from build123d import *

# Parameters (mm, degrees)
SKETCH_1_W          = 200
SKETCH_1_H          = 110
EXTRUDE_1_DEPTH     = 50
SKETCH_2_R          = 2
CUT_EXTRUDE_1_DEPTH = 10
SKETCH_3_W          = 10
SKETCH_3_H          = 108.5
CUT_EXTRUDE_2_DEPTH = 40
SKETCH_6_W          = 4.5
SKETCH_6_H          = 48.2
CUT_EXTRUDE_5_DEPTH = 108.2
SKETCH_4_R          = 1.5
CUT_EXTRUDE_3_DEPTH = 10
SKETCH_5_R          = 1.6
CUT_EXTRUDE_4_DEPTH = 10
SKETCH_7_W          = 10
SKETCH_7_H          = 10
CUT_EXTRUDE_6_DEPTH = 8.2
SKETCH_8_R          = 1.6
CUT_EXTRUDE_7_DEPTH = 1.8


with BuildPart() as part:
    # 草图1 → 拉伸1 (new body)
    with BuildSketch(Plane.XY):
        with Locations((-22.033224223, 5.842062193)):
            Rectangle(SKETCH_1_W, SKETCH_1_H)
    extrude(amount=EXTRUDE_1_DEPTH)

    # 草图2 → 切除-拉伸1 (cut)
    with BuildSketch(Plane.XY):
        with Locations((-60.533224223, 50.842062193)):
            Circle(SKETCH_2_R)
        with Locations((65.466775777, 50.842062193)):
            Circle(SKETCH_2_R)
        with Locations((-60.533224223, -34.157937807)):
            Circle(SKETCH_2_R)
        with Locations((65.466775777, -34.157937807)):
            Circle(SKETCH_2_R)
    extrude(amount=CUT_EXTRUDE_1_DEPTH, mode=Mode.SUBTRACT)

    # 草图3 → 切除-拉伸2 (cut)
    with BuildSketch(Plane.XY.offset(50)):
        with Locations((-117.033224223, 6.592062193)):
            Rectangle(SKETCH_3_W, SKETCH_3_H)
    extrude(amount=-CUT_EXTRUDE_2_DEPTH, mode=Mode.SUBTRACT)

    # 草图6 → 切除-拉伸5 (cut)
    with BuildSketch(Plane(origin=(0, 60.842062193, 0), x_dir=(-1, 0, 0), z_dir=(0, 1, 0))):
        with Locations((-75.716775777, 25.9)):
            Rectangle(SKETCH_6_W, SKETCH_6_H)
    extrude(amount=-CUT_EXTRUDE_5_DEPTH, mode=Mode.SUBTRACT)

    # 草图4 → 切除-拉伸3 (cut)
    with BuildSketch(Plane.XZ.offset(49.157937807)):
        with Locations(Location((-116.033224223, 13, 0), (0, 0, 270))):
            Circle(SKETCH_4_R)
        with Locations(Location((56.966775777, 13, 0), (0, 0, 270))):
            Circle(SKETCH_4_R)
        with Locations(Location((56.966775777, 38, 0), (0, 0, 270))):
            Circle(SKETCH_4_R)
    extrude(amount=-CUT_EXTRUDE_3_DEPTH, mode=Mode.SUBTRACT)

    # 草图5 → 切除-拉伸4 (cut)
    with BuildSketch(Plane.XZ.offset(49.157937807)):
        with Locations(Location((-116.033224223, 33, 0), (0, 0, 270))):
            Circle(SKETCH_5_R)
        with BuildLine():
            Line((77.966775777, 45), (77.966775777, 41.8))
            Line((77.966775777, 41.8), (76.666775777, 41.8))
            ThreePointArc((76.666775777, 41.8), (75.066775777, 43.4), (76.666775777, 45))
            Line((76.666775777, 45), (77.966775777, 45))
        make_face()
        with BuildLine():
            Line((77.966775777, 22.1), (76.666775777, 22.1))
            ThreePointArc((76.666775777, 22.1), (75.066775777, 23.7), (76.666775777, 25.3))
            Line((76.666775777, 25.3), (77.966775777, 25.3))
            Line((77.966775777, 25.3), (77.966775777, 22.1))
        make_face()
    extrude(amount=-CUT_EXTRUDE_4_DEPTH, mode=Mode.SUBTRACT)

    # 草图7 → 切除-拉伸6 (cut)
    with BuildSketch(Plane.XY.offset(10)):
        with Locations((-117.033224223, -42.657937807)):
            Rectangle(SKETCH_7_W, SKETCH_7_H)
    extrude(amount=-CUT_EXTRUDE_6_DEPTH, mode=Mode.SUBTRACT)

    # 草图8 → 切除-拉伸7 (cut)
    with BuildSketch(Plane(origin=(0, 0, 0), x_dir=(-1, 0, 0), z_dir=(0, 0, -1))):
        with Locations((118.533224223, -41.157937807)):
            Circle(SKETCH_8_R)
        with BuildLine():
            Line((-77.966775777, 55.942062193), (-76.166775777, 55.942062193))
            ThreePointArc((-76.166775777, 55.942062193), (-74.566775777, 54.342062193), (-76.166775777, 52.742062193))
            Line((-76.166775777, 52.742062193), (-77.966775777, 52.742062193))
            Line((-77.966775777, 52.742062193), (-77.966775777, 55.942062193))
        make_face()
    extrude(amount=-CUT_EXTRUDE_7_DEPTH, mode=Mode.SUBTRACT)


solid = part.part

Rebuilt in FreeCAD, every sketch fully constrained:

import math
import FreeCAD as App
import Part
import Sketcher
from FreeCAD import Vector


def add_polygon(sketch, points):
    """Adds a closed chain of lines whose ends are joined by coincident constraints."""
    first, n = sketch.GeometryCount, len(points)
    for a, b in zip(points, points[1:] + points[:1]):
        sketch.addGeometry(Part.LineSegment(App.Vector(*a, 0), App.Vector(*b, 0)), False)
    for i in range(n):
        sketch.addConstraint(Sketcher.Constraint("Coincident", first + i, 2, first + (i + 1) % n, 1))

doc = App.newDocument("Part")
params = doc.addObject("Spreadsheet::Sheet", "Params")
for row, (alias, value) in enumerate([
    ("sketch1_width", "200 mm"),
    ("sketch1_height", "110 mm"),
    ("pad1_length", "50 mm"),
    ("sketch2_diameter", "4 mm"),
    ("pocket1_length", "10 mm"),
    ("sketch3_width", "10 mm"),
    ("sketch3_height", "108.5 mm"),
    ("pocket2_length", "40 mm"),
    ("sketch4_width", "4.5 mm"),
    ("sketch4_height", "48.2 mm"),
    ("pocket3_length", "108.2 mm"),
    ("sketch5_diameter", "3 mm"),
    ("pocket4_length", "10 mm"),
    ("sketch6_diameter", "3.2 mm"),
    ("sketch6_width", "1.3 mm"),
    ("pocket5_length", "10 mm"),
    ("sketch7_width", "10 mm"),
    ("pocket6_length", "8.2 mm"),
    ("sketch8_diameter", "3.2 mm"),
    ("sketch8_width", "1.8 mm"),
    ("pocket7_length", "1.8 mm"),
], start=1):
    params.set(f"A{row}", alias)
    params.set(f"B{row}", "=" + value)
    params.setAlias(f"B{row}", alias)

body = doc.addObject("PartDesign::Body", "Body")

sketch1 = doc.addObject("Sketcher::SketchObject", "Sketch")
body.addObject(sketch1)
sketch1.AttachmentSupport = (doc.XY_Plane, [""])
sketch1.MapMode = "FlatFace"
add_polygon(sketch1, [(-122, 61), (-122, -49), (78, -49), (78, 61)])
sketch1.addConstraint(Sketcher.Constraint("Vertical", 0))
sketch1.addConstraint(Sketcher.Constraint("Horizontal", 1))
sketch1.addConstraint(Sketcher.Constraint("Vertical", 2))
sketch1.addConstraint(Sketcher.Constraint("Horizontal", 3))
sketch1.addConstraint(Sketcher.Constraint("DistanceX", 1, 1, 1, 2, 200.0))
sketch1.addConstraint(Sketcher.Constraint("DistanceY", 0, 2, 0, 1, 110.0))
sketch1.addConstraint(Sketcher.Constraint("DistanceX", 0, 2, -1, 1, 122.033224))
sketch1.addConstraint(Sketcher.Constraint("DistanceY", 0, 2, -1, 1, 49.157938))
sketch1.setExpression("Constraints[8]", "Params.sketch1_width")
sketch1.setExpression("Constraints[9]", "Params.sketch1_height")
pad1 = doc.addObject("PartDesign::Pad", "Pad")
body.addObject(pad1)
pad1.Profile = sketch1
pad1.setExpression("Length", "Params.pad1_length")

sketch2 = doc.addObject("Sketcher::SketchObject", "Sketch001")
body.addObject(sketch2)
sketch2.AttachmentSupport = (doc.XY_Plane, [""])
sketch2.MapMode = "FlatFace"
sketch2.addGeometry(Part.Circle(Vector(-60.5, 50.8, 0), Vector(0, 0, 1), 2), False)
sketch2.addGeometry(Part.Circle(Vector(65.5, 50.8, 0), Vector(0, 0, 1), 2), False)
sketch2.addGeometry(Part.Circle(Vector(-60.5, -34.2, 0), Vector(0, 0, 1), 2), False)
sketch2.addGeometry(Part.Circle(Vector(65.5, -34.2, 0), Vector(0, 0, 1), 2), False)
sketch2.addConstraint(Sketcher.Constraint("Equal", 0, 1))
sketch2.addConstraint(Sketcher.Constraint("Equal", 1, 2))
sketch2.addConstraint(Sketcher.Constraint("Equal", 2, 3))
sketch2.addConstraint(Sketcher.Constraint("Horizontal", 0, 3, 1, 3))
sketch2.addConstraint(Sketcher.Constraint("Horizontal", 2, 3, 3, 3))
sketch2.addConstraint(Sketcher.Constraint("Vertical", 0, 3, 2, 3))
sketch2.addConstraint(Sketcher.Constraint("Vertical", 1, 3, 3, 3))
sketch2.addConstraint(Sketcher.Constraint("Diameter", 0, 4.0))
sketch2.addConstraint(Sketcher.Constraint("DistanceX", 0, 3, 1, 3, 126.0))
sketch2.addConstraint(Sketcher.Constraint("DistanceY", 2, 3, 0, 3, 85.0))
sketch2.addConstraint(Sketcher.Constraint("DistanceX", 0, 3, -1, 1, 60.533224))
sketch2.addConstraint(Sketcher.Constraint("DistanceY", -1, 1, 0, 3, 50.842062))
sketch2.setExpression("Constraints[7]", "Params.sketch2_diameter")
pocket1 = doc.addObject("PartDesign::Pocket", "Pocket")
body.addObject(pocket1)
pocket1.Profile = sketch2
pocket1.setExpression("Length", "Params.pocket1_length")
pocket1.Reversed = True

sketch3 = doc.addObject("Sketcher::SketchObject", "Sketch002")
body.addObject(sketch3)
sketch3.AttachmentSupport = (doc.XY_Plane, [""])
sketch3.MapMode = "FlatFace"
sketch3.AttachmentOffset = App.Placement(Vector(0, 0, 50), App.Rotation())
add_polygon(sketch3, [(-122, 61), (-122, -48), (-112, -48), (-112, 61)])
sketch3.addConstraint(Sketcher.Constraint("Vertical", 0))
sketch3.addConstraint(Sketcher.Constraint("Horizontal", 1))
sketch3.addConstraint(Sketcher.Constraint("Vertical", 2))
sketch3.addConstraint(Sketcher.Constraint("Horizontal", 3))
sketch3.addConstraint(Sketcher.Constraint("DistanceX", 1, 1, 1, 2, 10.0))
sketch3.addConstraint(Sketcher.Constraint("DistanceY", 0, 2, 0, 1, 108.5))
sketch3.addConstraint(Sketcher.Constraint("DistanceX", 0, 2, -1, 1, 122.033224))
sketch3.addConstraint(Sketcher.Constraint("DistanceY", 0, 2, -1, 1, 47.657938))
sketch3.setExpression("Constraints[8]", "Params.sketch3_width")
sketch3.setExpression("Constraints[9]", "Params.sketch3_height")
pocket2 = doc.addObject("PartDesign::Pocket", "Pocket001")
body.addObject(pocket2)
pocket2.Profile = sketch3
pocket2.setExpression("Length", "Params.pocket2_length")

sketch4 = doc.addObject("Sketcher::SketchObject", "Sketch003")
body.addObject(sketch4)
sketch4.AttachmentSupport = (doc.XZ_Plane, [""])
sketch4.MapMode = "FlatFace"
sketch4.AttachmentOffset = App.Placement(Vector(0, 0, -60.842062), App.Rotation())
add_polygon(sketch4, [(78, 50), (78, 1.8), (73.5, 1.8), (73.5, 50)])
sketch4.addConstraint(Sketcher.Constraint("Vertical", 0))
sketch4.addConstraint(Sketcher.Constraint("Horizontal", 1))
sketch4.addConstraint(Sketcher.Constraint("Vertical", 2))
sketch4.addConstraint(Sketcher.Constraint("Horizontal", 3))
sketch4.addConstraint(Sketcher.Constraint("DistanceX", 1, 2, 1, 1, 4.5))
sketch4.addConstraint(Sketcher.Constraint("DistanceY", 0, 2, 0, 1, 48.2))
sketch4.addConstraint(Sketcher.Constraint("DistanceY", -1, 1, 2, 2, 50.0))
sketch4.addConstraint(Sketcher.Constraint("DistanceX", -1, 1, 0, 2, 77.966776))
sketch4.setExpression("Constraints[8]", "Params.sketch4_width")
sketch4.setExpression("Constraints[9]", "Params.sketch4_height")
pocket3 = doc.addObject("PartDesign::Pocket", "Pocket002")
body.addObject(pocket3)
pocket3.Profile = sketch4
pocket3.setExpression("Length", "Params.pocket3_length")
pocket3.Reversed = True

sketch5 = doc.addObject("Sketcher::SketchObject", "Sketch004")
body.addObject(sketch5)
sketch5.AttachmentSupport = (doc.XZ_Plane, [""])
sketch5.MapMode = "FlatFace"
sketch5.AttachmentOffset = App.Placement(Vector(0, 0, 49.157938), App.Rotation())
sketch5.addGeometry(Part.Circle(Vector(-116, 13, 0), Vector(0, 0, 1), 1.5), False)
sketch5.addGeometry(Part.Circle(Vector(57, 13, 0), Vector(0, 0, 1), 1.5), False)
sketch5.addGeometry(Part.Circle(Vector(57, 38, 0), Vector(0, 0, 1), 1.5), False)
sketch5.addConstraint(Sketcher.Constraint("Equal", 0, 1))
sketch5.addConstraint(Sketcher.Constraint("Equal", 1, 2))
sketch5.addConstraint(Sketcher.Constraint("Horizontal", 0, 3, 1, 3))
sketch5.addConstraint(Sketcher.Constraint("Vertical", 1, 3, 2, 3))
sketch5.addConstraint(Sketcher.Constraint("Diameter", 0, 3.0))
sketch5.addConstraint(Sketcher.Constraint("DistanceY", -1, 1, 0, 3, 13.0))
sketch5.addConstraint(Sketcher.Constraint("DistanceY", -1, 1, 2, 3, 38.0))
sketch5.addConstraint(Sketcher.Constraint("DistanceX", 0, 3, 1, 3, 173.0))
sketch5.addConstraint(Sketcher.Constraint("DistanceX", 0, 3, -1, 1, 116.033224))
sketch5.setExpression("Constraints[4]", "Params.sketch5_diameter")
pocket4 = doc.addObject("PartDesign::Pocket", "Pocket003")
body.addObject(pocket4)
pocket4.Profile = sketch5
pocket4.setExpression("Length", "Params.pocket4_length")

sketch6 = doc.addObject("Sketcher::SketchObject", "Sketch005")
body.addObject(sketch6)
sketch6.AttachmentSupport = (doc.XZ_Plane, [""])
sketch6.MapMode = "FlatFace"
sketch6.AttachmentOffset = App.Placement(Vector(0, 0, 49.157938), App.Rotation())
sketch6.addGeometry(Part.Circle(Vector(-116, 33, 0), Vector(0, 0, 1), 1.6), False)
sketch6.addGeometry(Part.LineSegment(Vector(78, 41.8, 0), Vector(78, 45, 0)), False)
sketch6.addGeometry(Part.LineSegment(Vector(78, 45, 0), Vector(76.7, 45, 0)), False)
sketch6.addGeometry(Part.ArcOfCircle(Part.Circle(Vector(76.7, 43.4, 0), Vector(0, 0, 1), 1.6), math.radians(90), math.radians(270)), False)
sketch6.addGeometry(Part.LineSegment(Vector(76.7, 41.8, 0), Vector(78, 41.8, 0)), False)
sketch6.addGeometry(Part.LineSegment(Vector(76.7, 22.1, 0), Vector(78, 22.1, 0)), False)
sketch6.addGeometry(Part.LineSegment(Vector(78, 22.1, 0), Vector(78, 25.3, 0)), False)
sketch6.addGeometry(Part.LineSegment(Vector(78, 25.3, 0), Vector(76.7, 25.3, 0)), False)
sketch6.addGeometry(Part.ArcOfCircle(Part.Circle(Vector(76.7, 23.7, 0), Vector(0, 0, 1), 1.6), math.radians(90), math.radians(270)), False)
sketch6.addConstraint(Sketcher.Constraint("Coincident", 1, 2, 2, 1))
sketch6.addConstraint(Sketcher.Constraint("Tangent", 2, 2, 3, 1))
sketch6.addConstraint(Sketcher.Constraint("Tangent", 3, 2, 4, 1))
sketch6.addConstraint(Sketcher.Constraint("Coincident", 4, 2, 1, 1))
sketch6.addConstraint(Sketcher.Constraint("Coincident", 5, 2, 6, 1))
sketch6.addConstraint(Sketcher.Constraint("Coincident", 6, 2, 7, 1))
sketch6.addConstraint(Sketcher.Constraint("Tangent", 7, 2, 8, 1))
sketch6.addConstraint(Sketcher.Constraint("Tangent", 8, 2, 5, 1))
sketch6.addConstraint(Sketcher.Constraint("Vertical", 1))
sketch6.addConstraint(Sketcher.Constraint("Horizontal", 2))
sketch6.addConstraint(Sketcher.Constraint("Horizontal", 4))
sketch6.addConstraint(Sketcher.Constraint("Horizontal", 5))
sketch6.addConstraint(Sketcher.Constraint("Vertical", 6))
sketch6.addConstraint(Sketcher.Constraint("Horizontal", 7))
sketch6.addConstraint(Sketcher.Constraint("Equal", 0, 3))
sketch6.addConstraint(Sketcher.Constraint("Equal", 3, 8))
sketch6.addConstraint(Sketcher.Constraint("Vertical", 3, 3, 8, 3))
sketch6.addConstraint(Sketcher.Constraint("Vertical", 4, 2, 5, 2))
sketch6.addConstraint(Sketcher.Constraint("Diameter", 0, 3.2))
sketch6.addConstraint(Sketcher.Constraint("DistanceX", 2, 2, 2, 1, 1.3))
sketch6.addConstraint(Sketcher.Constraint("DistanceY", -1, 1, 0, 3, 33.0))
sketch6.addConstraint(Sketcher.Constraint("DistanceY", -1, 1, 1, 2, 45.0))
sketch6.addConstraint(Sketcher.Constraint("DistanceX", 0, 3, 1, 2, 194.0))
sketch6.addConstraint(Sketcher.Constraint("DistanceY", -1, 1, 8, 3, 23.7))
sketch6.addConstraint(Sketcher.Constraint("DistanceX", 0, 3, -1, 1, 116.033224))
sketch6.setExpression("Constraints[18]", "Params.sketch6_diameter")
sketch6.setExpression("Constraints[19]", "Params.sketch6_width")
pocket5 = doc.addObject("PartDesign::Pocket", "Pocket004")
body.addObject(pocket5)
pocket5.Profile = sketch6
pocket5.setExpression("Length", "Params.pocket5_length")

sketch7 = doc.addObject("Sketcher::SketchObject", "Sketch006")
body.addObject(sketch7)
sketch7.AttachmentSupport = (doc.XY_Plane, [""])
sketch7.MapMode = "FlatFace"
sketch7.AttachmentOffset = App.Placement(Vector(0, 0, 10), App.Rotation())
add_polygon(sketch7, [(-122, -38), (-122, -48), (-112, -48), (-112, -38)])
sketch7.addConstraint(Sketcher.Constraint("Vertical", 0))
sketch7.addConstraint(Sketcher.Constraint("Horizontal", 1))
sketch7.addConstraint(Sketcher.Constraint("Vertical", 2))
sketch7.addConstraint(Sketcher.Constraint("Horizontal", 3))
sketch7.addConstraint(Sketcher.Constraint("Equal", 3, 0))
sketch7.addConstraint(Sketcher.Constraint("DistanceX", 1, 1, 1, 2, 10.0))
sketch7.addConstraint(Sketcher.Constraint("DistanceX", 0, 2, -1, 1, 122.033224))
sketch7.addConstraint(Sketcher.Constraint("DistanceY", 0, 2, -1, 1, 47.657938))
sketch7.setExpression("Constraints[9]", "Params.sketch7_width")
pocket6 = doc.addObject("PartDesign::Pocket", "Pocket005")
body.addObject(pocket6)
pocket6.Profile = sketch7
pocket6.setExpression("Length", "Params.pocket6_length")

sketch8 = doc.addObject("Sketcher::SketchObject", "Sketch007")
body.addObject(sketch8)
sketch8.AttachmentSupport = (doc.XY_Plane, [""])
sketch8.MapMode = "FlatFace"
sketch8.addGeometry(Part.Circle(Vector(-118.5, -41.2, 0), Vector(0, 0, 1), 1.6), False)
sketch8.addGeometry(Part.LineSegment(Vector(76.2, 55.9, 0), Vector(78, 55.9, 0)), False)
sketch8.addGeometry(Part.LineSegment(Vector(78, 55.9, 0), Vector(78, 52.7, 0)), False)
sketch8.addGeometry(Part.LineSegment(Vector(78, 52.7, 0), Vector(76.2, 52.7, 0)), False)
sketch8.addGeometry(Part.ArcOfCircle(Part.Circle(Vector(76.2, 54.3, 0), Vector(0, 0, 1), 1.6), math.radians(90), math.radians(270)), False)
sketch8.addConstraint(Sketcher.Constraint("Coincident", 1, 2, 2, 1))
sketch8.addConstraint(Sketcher.Constraint("Coincident", 2, 2, 3, 1))
sketch8.addConstraint(Sketcher.Constraint("Tangent", 3, 2, 4, 2))
sketch8.addConstraint(Sketcher.Constraint("Tangent", 4, 1, 1, 1))
sketch8.addConstraint(Sketcher.Constraint("Horizontal", 1))
sketch8.addConstraint(Sketcher.Constraint("Vertical", 2))
sketch8.addConstraint(Sketcher.Constraint("Horizontal", 3))
sketch8.addConstraint(Sketcher.Constraint("Equal", 0, 4))
sketch8.addConstraint(Sketcher.Constraint("Diameter", 0, 3.2))
sketch8.addConstraint(Sketcher.Constraint("DistanceX", 1, 1, 1, 2, 1.8))
sketch8.addConstraint(Sketcher.Constraint("DistanceX", 0, 3, 4, 3, 194.7))
sketch8.addConstraint(Sketcher.Constraint("DistanceY", 0, 3, 4, 3, 95.5))
sketch8.addConstraint(Sketcher.Constraint("DistanceX", 0, 3, -1, 1, 118.533224))
sketch8.addConstraint(Sketcher.Constraint("DistanceY", 0, 3, -1, 1, 41.157938))
sketch8.setExpression("Constraints[8]", "Params.sketch8_diameter")
sketch8.setExpression("Constraints[9]", "Params.sketch8_width")
pocket7 = doc.addObject("PartDesign::Pocket", "Pocket006")
body.addObject(pocket7)
pocket7.Profile = sketch8
pocket7.setExpression("Length", "Params.pocket7_length")
pocket7.Reversed = True

doc.recompute()
